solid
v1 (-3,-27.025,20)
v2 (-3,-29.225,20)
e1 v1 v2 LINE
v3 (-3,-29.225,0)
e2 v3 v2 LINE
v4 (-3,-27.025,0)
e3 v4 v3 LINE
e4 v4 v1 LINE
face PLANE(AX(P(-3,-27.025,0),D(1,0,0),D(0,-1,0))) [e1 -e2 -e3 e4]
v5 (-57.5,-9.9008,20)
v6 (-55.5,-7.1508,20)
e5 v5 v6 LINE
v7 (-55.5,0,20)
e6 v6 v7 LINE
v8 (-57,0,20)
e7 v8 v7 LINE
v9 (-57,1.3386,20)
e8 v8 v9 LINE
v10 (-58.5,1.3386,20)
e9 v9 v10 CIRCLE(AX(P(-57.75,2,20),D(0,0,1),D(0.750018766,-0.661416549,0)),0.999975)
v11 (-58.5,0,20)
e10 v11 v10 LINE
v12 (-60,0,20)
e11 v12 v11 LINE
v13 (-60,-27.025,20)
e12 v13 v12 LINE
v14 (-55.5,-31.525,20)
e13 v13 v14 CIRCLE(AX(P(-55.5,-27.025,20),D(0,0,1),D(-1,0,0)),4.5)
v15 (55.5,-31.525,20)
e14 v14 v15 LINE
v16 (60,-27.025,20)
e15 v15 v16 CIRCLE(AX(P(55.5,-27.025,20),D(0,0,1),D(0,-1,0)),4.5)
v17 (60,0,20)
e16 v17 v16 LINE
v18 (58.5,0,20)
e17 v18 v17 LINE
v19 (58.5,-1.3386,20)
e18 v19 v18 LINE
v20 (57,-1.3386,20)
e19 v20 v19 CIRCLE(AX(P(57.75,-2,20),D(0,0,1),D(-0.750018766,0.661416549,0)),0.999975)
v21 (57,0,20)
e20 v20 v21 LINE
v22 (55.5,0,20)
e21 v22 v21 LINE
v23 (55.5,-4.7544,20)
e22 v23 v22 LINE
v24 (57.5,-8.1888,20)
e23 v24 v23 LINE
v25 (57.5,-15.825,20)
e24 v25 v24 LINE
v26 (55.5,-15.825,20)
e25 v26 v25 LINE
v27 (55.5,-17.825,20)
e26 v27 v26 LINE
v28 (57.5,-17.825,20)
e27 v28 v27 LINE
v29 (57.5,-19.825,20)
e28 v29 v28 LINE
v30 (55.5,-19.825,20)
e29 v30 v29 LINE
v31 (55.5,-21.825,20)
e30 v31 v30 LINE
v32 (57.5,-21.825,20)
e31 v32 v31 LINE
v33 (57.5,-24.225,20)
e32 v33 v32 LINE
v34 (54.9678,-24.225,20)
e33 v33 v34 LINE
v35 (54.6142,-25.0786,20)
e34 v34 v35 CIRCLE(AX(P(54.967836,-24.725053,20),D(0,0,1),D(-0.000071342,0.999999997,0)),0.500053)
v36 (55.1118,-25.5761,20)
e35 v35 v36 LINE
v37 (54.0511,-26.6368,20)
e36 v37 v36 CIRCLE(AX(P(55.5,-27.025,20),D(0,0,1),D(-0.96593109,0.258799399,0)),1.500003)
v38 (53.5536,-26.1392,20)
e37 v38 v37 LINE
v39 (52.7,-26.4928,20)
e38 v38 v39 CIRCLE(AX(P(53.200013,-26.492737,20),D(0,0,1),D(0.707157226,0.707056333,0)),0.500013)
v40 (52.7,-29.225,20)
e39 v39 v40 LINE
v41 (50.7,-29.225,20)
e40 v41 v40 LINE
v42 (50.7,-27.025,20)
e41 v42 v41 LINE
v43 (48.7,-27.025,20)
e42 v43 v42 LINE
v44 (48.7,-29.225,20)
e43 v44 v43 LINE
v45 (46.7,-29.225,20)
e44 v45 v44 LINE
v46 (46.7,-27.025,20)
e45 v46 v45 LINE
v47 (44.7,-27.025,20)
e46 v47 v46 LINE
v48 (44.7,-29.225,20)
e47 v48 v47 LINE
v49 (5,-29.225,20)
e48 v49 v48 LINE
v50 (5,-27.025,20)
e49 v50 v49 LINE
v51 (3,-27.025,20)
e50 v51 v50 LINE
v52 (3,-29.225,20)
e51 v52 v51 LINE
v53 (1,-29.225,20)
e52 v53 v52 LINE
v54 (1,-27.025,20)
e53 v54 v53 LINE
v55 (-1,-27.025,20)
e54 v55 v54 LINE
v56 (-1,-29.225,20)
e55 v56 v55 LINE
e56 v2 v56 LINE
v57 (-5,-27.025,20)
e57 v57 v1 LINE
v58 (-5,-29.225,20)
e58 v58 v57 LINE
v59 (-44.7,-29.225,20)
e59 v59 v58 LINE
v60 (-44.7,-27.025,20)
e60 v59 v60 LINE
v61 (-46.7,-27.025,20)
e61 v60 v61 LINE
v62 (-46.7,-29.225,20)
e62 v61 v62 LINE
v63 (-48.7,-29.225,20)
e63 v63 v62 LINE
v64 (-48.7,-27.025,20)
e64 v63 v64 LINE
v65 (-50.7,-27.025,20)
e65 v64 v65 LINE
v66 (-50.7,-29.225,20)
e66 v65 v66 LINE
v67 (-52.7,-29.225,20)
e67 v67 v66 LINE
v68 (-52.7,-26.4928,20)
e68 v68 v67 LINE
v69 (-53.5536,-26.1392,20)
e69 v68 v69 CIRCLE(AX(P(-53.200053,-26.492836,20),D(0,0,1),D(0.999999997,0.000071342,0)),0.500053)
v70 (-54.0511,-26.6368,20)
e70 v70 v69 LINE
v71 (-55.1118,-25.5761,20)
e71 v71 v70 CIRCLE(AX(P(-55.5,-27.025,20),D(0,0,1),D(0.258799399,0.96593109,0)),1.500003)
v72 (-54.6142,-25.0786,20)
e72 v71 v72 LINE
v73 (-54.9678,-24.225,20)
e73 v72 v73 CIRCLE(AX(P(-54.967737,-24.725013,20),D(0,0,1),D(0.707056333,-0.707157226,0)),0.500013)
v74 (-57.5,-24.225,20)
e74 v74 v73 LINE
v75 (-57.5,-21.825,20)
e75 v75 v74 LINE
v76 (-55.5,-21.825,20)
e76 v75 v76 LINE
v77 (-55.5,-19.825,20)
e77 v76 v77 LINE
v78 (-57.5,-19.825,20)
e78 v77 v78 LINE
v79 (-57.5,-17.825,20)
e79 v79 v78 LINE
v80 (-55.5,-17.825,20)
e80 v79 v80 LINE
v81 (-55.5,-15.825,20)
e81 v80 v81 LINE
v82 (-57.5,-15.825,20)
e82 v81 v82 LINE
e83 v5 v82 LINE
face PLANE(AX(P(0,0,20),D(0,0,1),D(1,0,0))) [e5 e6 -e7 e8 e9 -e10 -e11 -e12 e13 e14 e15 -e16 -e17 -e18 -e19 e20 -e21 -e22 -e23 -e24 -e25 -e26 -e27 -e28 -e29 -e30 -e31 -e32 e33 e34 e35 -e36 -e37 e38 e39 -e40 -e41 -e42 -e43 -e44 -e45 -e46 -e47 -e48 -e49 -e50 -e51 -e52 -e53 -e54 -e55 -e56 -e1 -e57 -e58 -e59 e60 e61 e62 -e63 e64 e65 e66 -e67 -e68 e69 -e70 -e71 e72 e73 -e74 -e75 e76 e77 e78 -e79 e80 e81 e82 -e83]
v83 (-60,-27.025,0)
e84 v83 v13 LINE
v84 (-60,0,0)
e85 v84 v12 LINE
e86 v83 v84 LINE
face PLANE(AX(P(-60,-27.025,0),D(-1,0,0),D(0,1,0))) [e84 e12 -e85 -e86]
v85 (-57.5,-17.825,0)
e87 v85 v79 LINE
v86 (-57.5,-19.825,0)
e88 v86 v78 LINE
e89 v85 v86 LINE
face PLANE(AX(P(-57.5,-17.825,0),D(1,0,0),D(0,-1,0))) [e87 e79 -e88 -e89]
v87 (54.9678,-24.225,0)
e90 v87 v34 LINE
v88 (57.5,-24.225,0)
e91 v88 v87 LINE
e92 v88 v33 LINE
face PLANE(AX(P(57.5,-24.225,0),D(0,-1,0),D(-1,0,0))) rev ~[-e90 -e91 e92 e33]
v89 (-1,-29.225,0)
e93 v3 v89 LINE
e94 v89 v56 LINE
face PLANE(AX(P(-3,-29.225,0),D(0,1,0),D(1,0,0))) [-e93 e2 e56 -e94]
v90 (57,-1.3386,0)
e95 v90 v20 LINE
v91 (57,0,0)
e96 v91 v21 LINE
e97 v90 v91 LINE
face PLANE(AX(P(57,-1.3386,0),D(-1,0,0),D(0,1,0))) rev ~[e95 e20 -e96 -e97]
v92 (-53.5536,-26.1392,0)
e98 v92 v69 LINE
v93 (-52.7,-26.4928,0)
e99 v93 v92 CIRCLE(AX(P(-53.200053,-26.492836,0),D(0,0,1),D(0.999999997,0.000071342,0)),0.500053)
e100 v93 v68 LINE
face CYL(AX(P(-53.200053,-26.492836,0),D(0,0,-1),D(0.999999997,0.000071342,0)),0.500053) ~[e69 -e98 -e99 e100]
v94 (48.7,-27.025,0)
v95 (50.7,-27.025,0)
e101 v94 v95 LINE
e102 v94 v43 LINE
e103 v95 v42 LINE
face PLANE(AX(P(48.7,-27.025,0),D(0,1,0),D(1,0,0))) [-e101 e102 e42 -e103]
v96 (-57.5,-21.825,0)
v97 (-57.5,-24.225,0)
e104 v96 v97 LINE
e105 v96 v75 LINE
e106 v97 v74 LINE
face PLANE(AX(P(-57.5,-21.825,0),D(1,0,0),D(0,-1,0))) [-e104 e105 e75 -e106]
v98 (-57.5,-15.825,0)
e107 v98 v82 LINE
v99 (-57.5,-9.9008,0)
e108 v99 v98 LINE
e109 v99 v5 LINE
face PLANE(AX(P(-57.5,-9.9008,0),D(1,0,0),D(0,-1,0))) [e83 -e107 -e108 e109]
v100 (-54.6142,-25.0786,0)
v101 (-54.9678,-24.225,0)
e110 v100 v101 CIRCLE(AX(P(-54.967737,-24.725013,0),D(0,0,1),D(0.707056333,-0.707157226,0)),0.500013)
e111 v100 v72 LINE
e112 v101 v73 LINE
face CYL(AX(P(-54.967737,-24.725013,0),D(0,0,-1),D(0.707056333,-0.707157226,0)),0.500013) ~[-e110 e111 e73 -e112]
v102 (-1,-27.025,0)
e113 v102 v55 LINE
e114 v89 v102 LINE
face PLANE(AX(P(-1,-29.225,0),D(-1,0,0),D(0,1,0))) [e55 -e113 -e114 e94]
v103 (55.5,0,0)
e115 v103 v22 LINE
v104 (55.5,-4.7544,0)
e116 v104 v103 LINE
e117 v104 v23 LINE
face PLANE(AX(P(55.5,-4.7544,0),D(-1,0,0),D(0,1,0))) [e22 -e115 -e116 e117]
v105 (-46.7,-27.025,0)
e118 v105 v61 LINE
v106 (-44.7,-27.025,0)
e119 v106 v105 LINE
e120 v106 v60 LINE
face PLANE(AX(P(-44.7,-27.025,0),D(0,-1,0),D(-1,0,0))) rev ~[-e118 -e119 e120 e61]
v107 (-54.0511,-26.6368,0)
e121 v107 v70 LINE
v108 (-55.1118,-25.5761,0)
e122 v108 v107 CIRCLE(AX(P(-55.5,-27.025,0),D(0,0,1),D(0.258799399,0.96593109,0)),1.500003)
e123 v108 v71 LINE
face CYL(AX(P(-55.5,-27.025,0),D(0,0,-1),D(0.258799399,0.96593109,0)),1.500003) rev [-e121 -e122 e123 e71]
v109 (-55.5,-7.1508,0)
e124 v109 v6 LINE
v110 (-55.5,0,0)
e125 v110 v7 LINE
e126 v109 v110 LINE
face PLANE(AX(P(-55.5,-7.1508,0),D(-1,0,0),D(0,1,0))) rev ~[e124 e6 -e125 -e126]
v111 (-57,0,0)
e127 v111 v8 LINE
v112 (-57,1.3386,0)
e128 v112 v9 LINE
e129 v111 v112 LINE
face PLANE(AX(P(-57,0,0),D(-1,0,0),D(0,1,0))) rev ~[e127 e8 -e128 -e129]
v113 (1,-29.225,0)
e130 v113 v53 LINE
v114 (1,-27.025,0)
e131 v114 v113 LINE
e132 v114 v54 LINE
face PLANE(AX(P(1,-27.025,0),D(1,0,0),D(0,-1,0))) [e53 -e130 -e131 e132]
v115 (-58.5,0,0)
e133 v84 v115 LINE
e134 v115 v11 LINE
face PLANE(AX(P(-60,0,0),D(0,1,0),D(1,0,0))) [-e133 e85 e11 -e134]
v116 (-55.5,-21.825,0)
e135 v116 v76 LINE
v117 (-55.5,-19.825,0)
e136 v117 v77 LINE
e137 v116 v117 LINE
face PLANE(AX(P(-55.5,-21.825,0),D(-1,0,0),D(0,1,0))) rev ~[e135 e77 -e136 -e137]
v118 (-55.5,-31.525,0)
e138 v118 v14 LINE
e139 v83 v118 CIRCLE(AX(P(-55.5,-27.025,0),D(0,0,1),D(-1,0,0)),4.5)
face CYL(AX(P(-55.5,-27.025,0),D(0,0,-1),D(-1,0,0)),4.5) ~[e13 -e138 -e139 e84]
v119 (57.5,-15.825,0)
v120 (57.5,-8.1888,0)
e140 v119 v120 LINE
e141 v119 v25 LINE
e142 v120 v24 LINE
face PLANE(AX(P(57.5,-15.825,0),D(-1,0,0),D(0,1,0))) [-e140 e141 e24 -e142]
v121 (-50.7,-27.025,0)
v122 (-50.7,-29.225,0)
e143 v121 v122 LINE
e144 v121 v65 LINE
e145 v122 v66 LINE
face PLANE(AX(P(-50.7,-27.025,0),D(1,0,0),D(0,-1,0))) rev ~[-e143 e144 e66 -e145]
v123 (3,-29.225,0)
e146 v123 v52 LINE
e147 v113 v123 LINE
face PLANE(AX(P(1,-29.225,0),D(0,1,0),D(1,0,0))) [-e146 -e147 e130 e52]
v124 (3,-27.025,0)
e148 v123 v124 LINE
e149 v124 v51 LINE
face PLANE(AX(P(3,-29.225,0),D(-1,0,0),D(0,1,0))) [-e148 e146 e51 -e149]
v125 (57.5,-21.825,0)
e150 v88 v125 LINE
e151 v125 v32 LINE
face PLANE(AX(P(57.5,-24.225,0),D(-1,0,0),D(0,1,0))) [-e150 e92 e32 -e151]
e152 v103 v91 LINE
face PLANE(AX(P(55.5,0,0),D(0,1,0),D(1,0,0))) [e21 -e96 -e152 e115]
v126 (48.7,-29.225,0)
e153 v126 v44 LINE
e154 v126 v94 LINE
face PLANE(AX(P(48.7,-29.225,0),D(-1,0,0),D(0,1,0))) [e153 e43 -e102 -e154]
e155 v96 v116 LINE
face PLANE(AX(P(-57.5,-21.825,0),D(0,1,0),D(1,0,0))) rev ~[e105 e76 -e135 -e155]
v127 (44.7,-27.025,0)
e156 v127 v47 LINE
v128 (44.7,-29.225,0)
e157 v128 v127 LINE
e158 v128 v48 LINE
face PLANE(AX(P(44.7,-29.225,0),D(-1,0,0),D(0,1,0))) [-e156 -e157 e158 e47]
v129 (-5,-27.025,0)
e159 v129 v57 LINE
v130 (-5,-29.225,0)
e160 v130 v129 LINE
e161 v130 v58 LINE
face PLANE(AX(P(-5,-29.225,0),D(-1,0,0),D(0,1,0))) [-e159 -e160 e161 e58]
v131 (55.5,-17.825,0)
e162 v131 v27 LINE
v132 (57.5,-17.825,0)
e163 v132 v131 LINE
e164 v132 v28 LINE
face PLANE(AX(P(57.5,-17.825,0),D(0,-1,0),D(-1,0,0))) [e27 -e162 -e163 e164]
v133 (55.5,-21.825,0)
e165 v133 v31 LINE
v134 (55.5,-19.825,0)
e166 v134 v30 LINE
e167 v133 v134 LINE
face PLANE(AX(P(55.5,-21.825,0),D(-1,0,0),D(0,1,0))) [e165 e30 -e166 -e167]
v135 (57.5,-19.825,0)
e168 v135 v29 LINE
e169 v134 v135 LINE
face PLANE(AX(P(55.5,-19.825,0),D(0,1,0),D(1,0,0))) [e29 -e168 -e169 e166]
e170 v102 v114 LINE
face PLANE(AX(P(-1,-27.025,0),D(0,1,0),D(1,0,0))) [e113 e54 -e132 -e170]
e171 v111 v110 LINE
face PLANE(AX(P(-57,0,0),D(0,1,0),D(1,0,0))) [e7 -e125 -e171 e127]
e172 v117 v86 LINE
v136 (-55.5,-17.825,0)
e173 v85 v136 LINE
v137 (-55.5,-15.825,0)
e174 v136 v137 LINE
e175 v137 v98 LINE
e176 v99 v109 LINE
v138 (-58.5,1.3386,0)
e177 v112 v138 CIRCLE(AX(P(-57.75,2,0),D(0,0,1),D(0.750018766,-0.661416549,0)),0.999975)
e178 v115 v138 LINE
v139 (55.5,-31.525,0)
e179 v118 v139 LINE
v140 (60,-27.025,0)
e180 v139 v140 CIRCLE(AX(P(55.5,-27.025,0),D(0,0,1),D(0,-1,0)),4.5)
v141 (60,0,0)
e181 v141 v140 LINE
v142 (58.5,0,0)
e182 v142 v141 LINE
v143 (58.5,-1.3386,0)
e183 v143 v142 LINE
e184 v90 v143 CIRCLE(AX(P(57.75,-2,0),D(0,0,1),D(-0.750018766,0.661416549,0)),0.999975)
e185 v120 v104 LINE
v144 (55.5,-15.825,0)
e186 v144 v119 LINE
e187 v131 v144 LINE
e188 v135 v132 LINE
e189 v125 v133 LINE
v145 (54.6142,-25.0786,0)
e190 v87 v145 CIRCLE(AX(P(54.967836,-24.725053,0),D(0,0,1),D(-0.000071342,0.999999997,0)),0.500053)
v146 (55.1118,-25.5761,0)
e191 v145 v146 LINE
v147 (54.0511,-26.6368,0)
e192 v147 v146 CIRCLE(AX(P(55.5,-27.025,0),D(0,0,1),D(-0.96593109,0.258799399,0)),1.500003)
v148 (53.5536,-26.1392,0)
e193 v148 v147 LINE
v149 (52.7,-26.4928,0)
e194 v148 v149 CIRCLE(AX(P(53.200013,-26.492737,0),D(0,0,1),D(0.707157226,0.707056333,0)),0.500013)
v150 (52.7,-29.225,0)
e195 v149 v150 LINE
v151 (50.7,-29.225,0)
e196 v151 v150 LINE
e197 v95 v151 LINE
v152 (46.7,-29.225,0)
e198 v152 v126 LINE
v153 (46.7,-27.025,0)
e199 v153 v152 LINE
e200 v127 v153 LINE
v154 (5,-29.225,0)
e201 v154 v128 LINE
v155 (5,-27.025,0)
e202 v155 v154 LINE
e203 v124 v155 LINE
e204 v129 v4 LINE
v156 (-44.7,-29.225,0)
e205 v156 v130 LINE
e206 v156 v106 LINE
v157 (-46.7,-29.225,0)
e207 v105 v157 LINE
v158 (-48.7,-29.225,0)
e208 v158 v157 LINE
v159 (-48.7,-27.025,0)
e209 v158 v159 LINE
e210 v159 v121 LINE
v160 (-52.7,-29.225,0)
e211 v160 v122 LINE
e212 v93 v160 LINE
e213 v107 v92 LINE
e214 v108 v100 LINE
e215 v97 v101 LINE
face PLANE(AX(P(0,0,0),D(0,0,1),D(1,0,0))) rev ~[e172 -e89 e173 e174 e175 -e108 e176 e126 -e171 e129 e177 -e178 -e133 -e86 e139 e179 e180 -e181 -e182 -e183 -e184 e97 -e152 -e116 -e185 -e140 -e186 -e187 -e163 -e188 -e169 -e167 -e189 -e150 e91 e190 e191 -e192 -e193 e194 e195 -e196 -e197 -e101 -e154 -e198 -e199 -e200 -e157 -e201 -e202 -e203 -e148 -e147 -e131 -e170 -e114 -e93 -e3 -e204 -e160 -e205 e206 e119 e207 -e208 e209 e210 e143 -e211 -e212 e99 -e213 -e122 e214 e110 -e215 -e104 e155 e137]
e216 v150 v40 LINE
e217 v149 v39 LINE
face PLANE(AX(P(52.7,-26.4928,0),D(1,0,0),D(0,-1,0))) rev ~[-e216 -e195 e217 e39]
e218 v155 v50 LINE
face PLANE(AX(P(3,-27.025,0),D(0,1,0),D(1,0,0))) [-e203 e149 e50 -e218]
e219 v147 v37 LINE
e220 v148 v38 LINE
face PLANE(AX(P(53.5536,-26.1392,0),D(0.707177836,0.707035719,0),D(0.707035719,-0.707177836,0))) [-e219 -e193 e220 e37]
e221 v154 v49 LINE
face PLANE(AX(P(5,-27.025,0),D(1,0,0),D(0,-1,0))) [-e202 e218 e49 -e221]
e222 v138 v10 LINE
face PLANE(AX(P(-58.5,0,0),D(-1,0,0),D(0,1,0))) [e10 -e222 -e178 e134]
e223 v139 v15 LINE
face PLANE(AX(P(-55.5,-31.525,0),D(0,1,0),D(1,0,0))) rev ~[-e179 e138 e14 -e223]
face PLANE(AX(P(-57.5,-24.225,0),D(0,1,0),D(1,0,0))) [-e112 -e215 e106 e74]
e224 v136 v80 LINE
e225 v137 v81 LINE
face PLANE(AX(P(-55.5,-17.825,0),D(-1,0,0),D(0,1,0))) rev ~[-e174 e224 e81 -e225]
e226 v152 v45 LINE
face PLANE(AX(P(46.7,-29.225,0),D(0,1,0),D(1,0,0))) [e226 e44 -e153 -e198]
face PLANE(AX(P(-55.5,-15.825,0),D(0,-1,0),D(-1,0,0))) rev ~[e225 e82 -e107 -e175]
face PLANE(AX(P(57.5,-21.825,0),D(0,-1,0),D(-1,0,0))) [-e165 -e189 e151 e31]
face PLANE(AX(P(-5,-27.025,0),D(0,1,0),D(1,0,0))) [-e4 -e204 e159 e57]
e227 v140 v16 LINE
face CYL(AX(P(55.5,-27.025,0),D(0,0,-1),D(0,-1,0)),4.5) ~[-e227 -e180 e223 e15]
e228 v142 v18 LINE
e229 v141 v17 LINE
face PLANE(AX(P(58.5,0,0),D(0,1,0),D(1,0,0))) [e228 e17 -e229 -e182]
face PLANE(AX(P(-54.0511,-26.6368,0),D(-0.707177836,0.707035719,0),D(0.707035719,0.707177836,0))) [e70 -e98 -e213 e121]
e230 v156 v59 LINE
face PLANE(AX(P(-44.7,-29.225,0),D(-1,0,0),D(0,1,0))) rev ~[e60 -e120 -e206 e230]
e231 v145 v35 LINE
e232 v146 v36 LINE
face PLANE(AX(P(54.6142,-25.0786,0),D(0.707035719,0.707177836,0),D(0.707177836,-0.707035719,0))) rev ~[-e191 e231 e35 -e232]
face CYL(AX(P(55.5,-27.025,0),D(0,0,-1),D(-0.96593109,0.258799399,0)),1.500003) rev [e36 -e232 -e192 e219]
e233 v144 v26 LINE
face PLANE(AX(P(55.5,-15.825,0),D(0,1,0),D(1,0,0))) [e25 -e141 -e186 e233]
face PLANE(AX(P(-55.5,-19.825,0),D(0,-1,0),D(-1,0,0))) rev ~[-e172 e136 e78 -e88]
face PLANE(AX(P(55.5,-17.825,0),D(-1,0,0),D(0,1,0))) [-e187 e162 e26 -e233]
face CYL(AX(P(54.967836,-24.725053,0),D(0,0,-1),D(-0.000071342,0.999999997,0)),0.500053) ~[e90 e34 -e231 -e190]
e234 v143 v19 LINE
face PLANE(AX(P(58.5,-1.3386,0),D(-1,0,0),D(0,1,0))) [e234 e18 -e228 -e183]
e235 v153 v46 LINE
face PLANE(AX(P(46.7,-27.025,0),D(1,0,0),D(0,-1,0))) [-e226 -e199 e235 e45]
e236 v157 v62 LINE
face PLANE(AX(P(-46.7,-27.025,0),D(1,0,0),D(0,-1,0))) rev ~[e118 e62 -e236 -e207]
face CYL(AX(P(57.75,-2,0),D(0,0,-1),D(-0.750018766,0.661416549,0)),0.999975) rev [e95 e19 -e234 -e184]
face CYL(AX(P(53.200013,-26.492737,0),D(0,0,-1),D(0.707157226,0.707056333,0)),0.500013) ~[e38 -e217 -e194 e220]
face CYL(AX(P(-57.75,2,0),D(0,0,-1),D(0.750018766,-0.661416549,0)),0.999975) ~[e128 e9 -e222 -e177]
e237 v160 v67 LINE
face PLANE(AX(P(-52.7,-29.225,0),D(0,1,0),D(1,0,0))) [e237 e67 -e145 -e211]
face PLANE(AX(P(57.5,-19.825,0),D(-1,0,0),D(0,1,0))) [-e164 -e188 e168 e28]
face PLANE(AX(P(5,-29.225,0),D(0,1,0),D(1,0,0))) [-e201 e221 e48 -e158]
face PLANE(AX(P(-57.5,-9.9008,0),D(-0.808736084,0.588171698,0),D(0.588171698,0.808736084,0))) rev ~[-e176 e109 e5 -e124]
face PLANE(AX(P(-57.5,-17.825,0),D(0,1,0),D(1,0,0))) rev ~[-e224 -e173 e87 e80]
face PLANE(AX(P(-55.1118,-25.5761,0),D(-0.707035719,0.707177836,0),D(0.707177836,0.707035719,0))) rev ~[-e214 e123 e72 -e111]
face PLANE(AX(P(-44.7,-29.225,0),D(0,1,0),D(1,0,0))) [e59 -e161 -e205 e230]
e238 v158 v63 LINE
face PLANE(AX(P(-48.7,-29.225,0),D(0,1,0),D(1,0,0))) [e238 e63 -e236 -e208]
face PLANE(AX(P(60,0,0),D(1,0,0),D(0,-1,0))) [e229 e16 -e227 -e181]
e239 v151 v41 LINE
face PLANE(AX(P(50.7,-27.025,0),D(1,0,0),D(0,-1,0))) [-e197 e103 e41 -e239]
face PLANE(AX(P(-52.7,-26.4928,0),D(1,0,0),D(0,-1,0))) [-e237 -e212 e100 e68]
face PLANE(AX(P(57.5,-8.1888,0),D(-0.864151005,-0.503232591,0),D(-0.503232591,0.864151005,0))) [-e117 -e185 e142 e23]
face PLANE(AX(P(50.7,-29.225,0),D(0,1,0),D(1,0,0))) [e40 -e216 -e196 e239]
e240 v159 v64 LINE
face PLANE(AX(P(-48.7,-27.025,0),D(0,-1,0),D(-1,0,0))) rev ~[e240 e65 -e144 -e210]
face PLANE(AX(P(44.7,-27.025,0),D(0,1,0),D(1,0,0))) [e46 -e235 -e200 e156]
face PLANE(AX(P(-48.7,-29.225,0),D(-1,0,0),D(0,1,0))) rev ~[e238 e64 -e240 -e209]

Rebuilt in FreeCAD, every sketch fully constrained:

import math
import FreeCAD as App
import Part
import Sketcher

doc = App.newDocument("Part")
body = doc.addObject("PartDesign::Body", "Body")

# Sketch on XY plane
sketch1 = body.newObject("Sketcher::SketchObject", "Sketch")
sketch1.AttachmentSupport = (doc.getObject("XY_Plane"), [""])
sketch1.MapMode = "FlatFace"
sketch1.addGeometry(Part.LineSegment(App.Vector(60, -27.025, 0), App.Vector(60, 0, 0)), False)
sketch1.addGeometry(Part.LineSegment(App.Vector(60, 0, 0), App.Vector(58.5, 0, 0)), False)
sketch1.addGeometry(Part.LineSegment(App.Vector(58.5, 0, 0), App.Vector(58.5, -1.3386, 0)), False)
sketch1.addGeometry(Part.ArcOfCircle(Part.Circle(App.Vector(57.75, -2, 0), App.Vector(0, 0, 1), 0.999975), math.radians(138.592003), math.radians(401.407997)), False)
sketch1.addGeometry(Part.LineSegment(App.Vector(57, -1.3386, 0), App.Vector(57, 0, 0)), False)
sketch1.addGeometry(Part.LineSegment(App.Vector(57, 0, 0), App.Vector(55.5, 0, 0)), False)
sketch1.addGeometry(Part.LineSegment(App.Vector(55.5, 0, 0), App.Vector(55.5, -4.7544, 0)), False)
sketch1.addGeometry(Part.LineSegment(App.Vector(55.5, -4.7544, 0), App.Vector(57.5, -8.1888, 0)), False)
sketch1.addGeometry(Part.LineSegment(App.Vector(57.5, -8.1888, 0), App.Vector(57.5, -15.825, 0)), False)
sketch1.addGeometry(Part.LineSegment(App.Vector(57.5, -15.825, 0), App.Vector(55.5, -15.825, 0)), False)
sketch1.addGeometry(Part.LineSegment(App.Vector(55.5, -15.825, 0), App.Vector(55.5, -17.825, 0)), False)
sketch1.addGeometry(Part.LineSegment(App.Vector(55.5, -17.825, 0), App.Vector(57.5, -17.825, 0)), False)
sketch1.addGeometry(Part.LineSegment(App.Vector(57.5, -17.825, 0), App.Vector(57.5, -19.825, 0)), False)
sketch1.addGeometry(Part.LineSegment(App.Vector(57.5, -19.825, 0), App.Vector(55.5, -19.825, 0)), False)
sketch1.addGeometry(Part.LineSegment(App.Vector(55.5, -19.825, 0), App.Vector(55.5, -21.825, 0)), False)
sketch1.addGeometry(Part.LineSegment(App.Vector(55.5, -21.825, 0), App.Vector(57.5, -21.825, 0)), False)
sketch1.addGeometry(Part.LineSegment(App.Vector(57.5, -21.825, 0), App.Vector(57.5, -24.225, 0)), False)
sketch1.addGeometry(Part.LineSegment(App.Vector(57.5, -24.225, 0), App.Vector(54.9678, -24.225, 0)), False)
sketch1.addGeometry(Part.ArcOfCircle(Part.Circle(App.Vector(54.9678, -24.725, 0), App.Vector(0, 0, 1), 0.5), math.radians(90), math.radians(225)), False)
sketch1.addGeometry(Part.LineSegment(App.Vector(54.6142, -25.0786, 0), App.Vector(55.1118, -25.5761, 0)), False)
sketch1.addGeometry(Part.ArcOfCircle(Part.Circle(App.Vector(55.5, -27.025, 0), App.Vector(0, 0, 1), 1.500003), math.radians(165.001165), math.radians(464.998835)), False)
sketch1.addGeometry(Part.LineSegment(App.Vector(54.0511, -26.6368, 0), App.Vector(53.5536, -26.1392, 0)), False)
sketch1.addGeometry(Part.ArcOfCircle(Part.Circle(App.Vector(53.2, -26.4928, 0), App.Vector(0, 0, 1), 0.500066), math.radians(45), math.radians(180)), False)
sketch1.addGeometry(Part.LineSegment(App.Vector(52.7, -26.4928, 0), App.Vector(52.7, -29.225, 0)), False)
sketch1.addGeometry(Part.LineSegment(App.Vector(52.7, -29.225, 0), App.Vector(50.7, -29.225, 0)), False)
sketch1.addGeometry(Part.LineSegment(App.Vector(50.7, -29.225, 0), App.Vector(50.7, -27.025, 0)), False)
sketch1.addGeometry(Part.LineSegment(App.Vector(50.7, -27.025, 0), App.Vector(48.7, -27.025, 0)), False)
sketch1.addGeometry(Part.LineSegment(App.Vector(48.7, -27.025, 0), App.Vector(48.7, -29.225, 0)), False)
sketch1.addGeometry(Part.LineSegment(App.Vector(48.7, -29.225, 0), App.Vector(46.7, -29.225, 0)), False)
sketch1.addGeometry(Part.LineSegment(App.Vector(46.7, -29.225, 0), App.Vector(46.7, -27.025, 0)), False)
sketch1.addGeometry(Part.LineSegment(App.Vector(46.7, -27.025, 0), App.Vector(44.7, -27.025, 0)), False)
sketch1.addGeometry(Part.LineSegment(App.Vector(44.7, -27.025, 0), App.Vector(44.7, -29.225, 0)), False)
sketch1.addGeometry(Part.LineSegment(App.Vector(44.7, -29.225, 0), App.Vector(5, -29.225, 0)), False)
sketch1.addGeometry(Part.LineSegment(App.Vector(5, -29.225, 0), App.Vector(5, -27.025, 0)), False)
sketch1.addGeometry(Part.LineSegment(App.Vector(5, -27.025, 0), App.Vector(3, -27.025, 0)), False)
sketch1.addGeometry(Part.LineSegment(App.Vector(3, -27.025, 0), App.Vector(3, -29.225, 0)), False)
sketch1.addGeometry(Part.LineSegment(App.Vector(3, -29.225, 0), App.Vector(1, -29.225, 0)), False)
sketch1.addGeometry(Part.LineSegment(App.Vector(1, -29.225, 0), App.Vector(1, -27.025, 0)), False)
sketch1.addGeometry(Part.LineSegment(App.Vector(1, -27.025, 0), App.Vector(-1, -27.025, 0)), False)
sketch1.addGeometry(Part.LineSegment(App.Vector(-1, -27.025, 0), App.Vector(-1, -29.225, 0)), False)
sketch1.addGeometry(Part.LineSegment(App.Vector(-1, -29.225, 0), App.Vector(-3, -29.225, 0)), False)
sketch1.addGeometry(Part.LineSegment(App.Vector(-3, -29.225, 0), App.Vector(-3, -27.025, 0)), False)
sketch1.addGeometry(Part.LineSegment(App.Vector(-3, -27.025, 0), App.Vector(-5, -27.025, 0)), False)
sketch1.addGeometry(Part.LineSegment(App.Vector(-5, -27.025, 0), App.Vector(-5, -29.225, 0)), False)
sketch1.addGeometry(Part.LineSegment(App.Vector(-5, -29.225, 0), App.Vector(-44.7, -29.225, 0)), False)
sketch1.addGeometry(Part.LineSegment(App.Vector(-44.7, -29.225, 0), App.Vector(-44.7, -27.025, 0)), False)
sketch1.addGeometry(Part.LineSegment(App.Vector(-44.7, -27.025, 0), App.Vector(-46.7, -27.025, 0)), False)
sketch1.addGeometry(Part.LineSegment(App.Vector(-46.7, -27.025, 0), App.Vector(-46.7, -29.225, 0)), False)
sketch1.addGeometry(Part.LineSegment(App.Vector(-46.7, -29.225, 0), App.Vector(-48.7, -29.225, 0)), False)
sketch1.addGeometry(Part.LineSegment(App.Vector(-48.7, -29.225, 0), App.Vector(-48.7, -27.025, 0)), False)
sketch1.addGeometry(Part.LineSegment(App.Vector(-48.7, -27.025, 0), App.Vector(-50.7, -27.025, 0)), False)
sketch1.addGeometry(Part.LineSegment(App.Vector(-50.7, -27.025, 0), App.Vector(-50.7, -29.225, 0)), False)
sketch1.addGeometry(Part.LineSegment(App.Vector(-50.7, -29.225, 0), App.Vector(-52.7, -29.225, 0)), False)
sketch1.addGeometry(Part.LineSegment(App.Vector(-52.7, -29.225, 0), App.Vector(-52.7, -26.4928, 0)), False)
sketch1.addGeometry(Part.ArcOfCircle(Part.Circle(App.Vector(-53.2, -26.4928, 0), App.Vector(0, 0, 1), 0.5), math.radians(0), math.radians(135)), False)
sketch1.addGeometry(Part.LineSegment(App.Vector(-53.5536, -26.1392, 0), App.Vector(-54.0511, -26.6368, 0)), False)
sketch1.addGeometry(Part.ArcOfCircle(Part.Circle(App.Vector(-55.5, -27.025, 0), App.Vector(0, 0, 1), 1.500003), math.radians(75.001165), math.radians(374.998835)), False)
sketch1.addGeometry(Part.LineSegment(App.Vector(-55.1118, -25.5761, 0), App.Vector(-54.6142, -25.0786, 0)), False)
sketch1.addGeometry(Part.ArcOfCircle(Part.Circle(App.Vector(-54.9678, -24.725, 0), App.Vector(0, 0, 1), 0.500066), math.radians(-45), math.radians(90)), False)
sketch1.addGeometry(Part.LineSegment(App.Vector(-54.9678, -24.225, 0), App.Vector(-57.5, -24.225, 0)), False)
sketch1.addGeometry(Part.LineSegment(App.Vector(-57.5, -24.225, 0), App.Vector(-57.5, -21.825, 0)), False)
sketch1.addGeometry(Part.LineSegment(App.Vector(-57.5, -21.825, 0), App.Vector(-55.5, -21.825, 0)), False)
sketch1.addGeometry(Part.LineSegment(App.Vector(-55.5, -21.825, 0), App.Vector(-55.5, -19.825, 0)), False)
sketch1.addGeometry(Part.LineSegment(App.Vector(-55.5, -19.825, 0), App.Vector(-57.5, -19.825, 0)), False)
sketch1.addGeometry(Part.LineSegment(App.Vector(-57.5, -19.825, 0), App.Vector(-57.5, -17.825, 0)), False)
sketch1.addGeometry(Part.LineSegment(App.Vector(-57.5, -17.825, 0), App.Vector(-55.5, -17.825, 0)), False)
sketch1.addGeometry(Part.LineSegment(App.Vector(-55.5, -17.825, 0), App.Vector(-55.5, -15.825, 0)), False)
sketch1.addGeometry(Part.LineSegment(App.Vector(-55.5, -15.825, 0), App.Vector(-57.5, -15.825, 0)), False)
sketch1.addGeometry(Part.LineSegment(App.Vector(-57.5, -15.825, 0), App.Vector(-57.5, -9.9008, 0)), False)
sketch1.addGeometry(Part.LineSegment(App.Vector(-57.5, -9.9008, 0), App.Vector(-55.5, -7.1508, 0)), False)
sketch1.addGeometry(Part.LineSegment(App.Vector(-55.5, -7.1508, 0), App.Vector(-55.5, 0, 0)), False)
sketch1.addGeometry(Part.LineSegment(App.Vector(-55.5, 0, 0), App.Vector(-57, 0, 0)), False)
sketch1.addGeometry(Part.LineSegment(App.Vector(-57, 0, 0), App.Vector(-57, 1.3386, 0)), False)
sketch1.addGeometry(Part.ArcOfCircle(Part.Circle(App.Vector(-57.75, 2, 0), App.Vector(0, 0, 1), 0.999975), math.radians(-41.407997), math.radians(221.407997)), False)
sketch1.addGeometry(Part.LineSegment(App.Vector(-58.5, 1.3386, 0), App.Vector(-58.5, 0, 0)), False)
sketch1.addGeometry(Part.LineSegment(App.Vector(-58.5, 0, 0), App.Vector(-60, 0, 0)), False)
sketch1.addGeometry(Part.LineSegment(App.Vector(-60, 0, 0), App.Vector(-60, -27.025, 0)), False)
sketch1.addGeometry(Part.ArcOfCircle(Part.Circle(App.Vector(-55.5, -27.025, 0), App.Vector(0, 0, 1), 4.5), math.radians(180), math.radians(270)), False)
sketch1.addGeometry(Part.LineSegment(App.Vector(-55.5, -31.525, 0), App.Vector(55.5, -31.525, 0)), False)
sketch1.addGeometry(Part.ArcOfCircle(Part.Circle(App.Vector(55.5, -27.025, 0), App.Vector(0, 0, 1), 4.5), math.radians(-90), math.radians(0)), False)
sketch1.addConstraint(Sketcher.Constraint("Coincident", 0, 2, 1, 1))
sketch1.addConstraint(Sketcher.Constraint("Coincident", 1, 2, 2, 1))
sketch1.addConstraint(Sketcher.Constraint("Coincident", 2, 2, 3, 2))
sketch1.addConstraint(Sketcher.Constraint("Coincident", 3, 1, 4, 1))
sketch1.addConstraint(Sketcher.Constraint("Coincident", 4, 2, 5, 1))
sketch1.addConstraint(Sketcher.Constraint("Coincident", 5, 2, 6, 1))
sketch1.addConstraint(Sketcher.Constraint("Coincident", 6, 2, 7, 1))
sketch1.addConstraint(Sketcher.Constraint("Coincident", 7, 2, 8, 1))
sketch1.addConstraint(Sketcher.Constraint("Coincident", 8, 2, 9, 1))
sketch1.addConstraint(Sketcher.Constraint("Coincident", 9, 2, 10, 1))
sketch1.addConstraint(Sketcher.Constraint("Coincident", 10, 2, 11, 1))
sketch1.addConstraint(Sketcher.Constraint("Coincident", 11, 2, 12, 1))
sketch1.addConstraint(Sketcher.Constraint("Coincident", 12, 2, 13, 1))
sketch1.addConstraint(Sketcher.Constraint("Coincident", 13, 2, 14, 1))
sketch1.addConstraint(Sketcher.Constraint("Coincident", 14, 2, 15, 1))
sketch1.addConstraint(Sketcher.Constraint("Coincident", 15, 2, 16, 1))
sketch1.addConstraint(Sketcher.Constraint("Coincident", 16, 2, 17, 1))
sketch1.addConstraint(Sketcher.Constraint("Tangent", 17, 2, 18, 1))
sketch1.addConstraint(Sketcher.Constraint("Tangent", 18, 2, 19, 1))
sketch1.addConstraint(Sketcher.Constraint("Coincident", 19, 2, 20, 2))
sketch1.addConstraint(Sketcher.Constraint("Coincident", 20, 1, 21, 1))
sketch1.addConstraint(Sketcher.Constraint("Tangent", 21, 2, 22, 1))
sketch1.addConstraint(Sketcher.Constraint("Tangent", 22, 2, 23, 1))
sketch1.addConstraint(Sketcher.Constraint("Coincident", 23, 2, 24, 1))
sketch1.addConstraint(Sketcher.Constraint("Coincident", 24, 2, 25, 1))
sketch1.addConstraint(Sketcher.Constraint("Coincident", 25, 2, 26, 1))
sketch1.addConstraint(Sketcher.Constraint("Coincident", 26, 2, 27, 1))
sketch1.addConstraint(Sketcher.Constraint("Coincident", 27, 2, 28, 1))
sketch1.addConstraint(Sketcher.Constraint("Coincident", 28, 2, 29, 1))
sketch1.addConstraint(Sketcher.Constraint("Coincident", 29, 2, 30, 1))
sketch1.addConstraint(Sketcher.Constraint("Coincident", 30, 2, 31, 1))
sketch1.addConstraint(Sketcher.Constraint("Coincident", 31, 2, 32, 1))
sketch1.addConstraint(Sketcher.Constraint("Coincident", 32, 2, 33, 1))
sketch1.addConstraint(Sketcher.Constraint("Coincident", 33, 2, 34, 1))
sketch1.addConstraint(Sketcher.Constraint("Coincident", 34, 2, 35, 1))
sketch1.addConstraint(Sketcher.Constraint("Coincident", 35, 2, 36, 1))
sketch1.addConstraint(Sketcher.Constraint("Coincident", 36, 2, 37, 1))
sketch1.addConstraint(Sketcher.Constraint("Coincident", 37, 2, 38, 1))
sketch1.addConstraint(Sketcher.Constraint("Coincident", 38, 2, 39, 1))
sketch1.addConstraint(Sketcher.Constraint("Coincident", 39, 2, 40, 1))
sketch1.addConstraint(Sketcher.Constraint("Coincident", 40, 2, 41, 1))
sketch1.addConstraint(Sketcher.Constraint("Coincident", 41, 2, 42, 1))
sketch1.addConstraint(Sketcher.Constraint("Coincident", 42, 2, 43, 1))
sketch1.addConstraint(Sketcher.Constraint("Coincident", 43, 2, 44, 1))
sketch1.addConstraint(Sketcher.Constraint("Coincident", 44, 2, 45, 1))
sketch1.addConstraint(Sketcher.Constraint("Coincident", 45, 2, 46, 1))
sketch1.addConstraint(Sketcher.Constraint("Coincident", 46, 2, 47, 1))
sketch1.addConstraint(Sketcher.Constraint("Coincident", 47, 2, 48, 1))
sketch1.addConstraint(Sketcher.Constraint("Coincident", 48, 2, 49, 1))
sketch1.addConstraint(Sketcher.Constraint("Coincident", 49, 2, 50, 1))
sketch1.addConstraint(Sketcher.Constraint("Coincident", 50, 2, 51, 1))
sketch1.addConstraint(Sketcher.Constraint("Coincident", 51, 2, 52, 1))
sketch1.addConstraint(Sketcher.Constraint("Coincident", 52, 2, 53, 1))
sketch1.addConstraint(Sketcher.Constraint("Tangent", 53, 2, 54, 1))
sketch1.addConstraint(Sketcher.Constraint("Tangent", 54, 2, 55, 1))
sketch1.addConstraint(Sketcher.Constraint("Coincident", 55, 2, 56, 2))
sketch1.addConstraint(Sketcher.Constraint("Coincident", 56, 1, 57, 1))
sketch1.addConstraint(Sketcher.Constraint("Tangent", 57, 2, 58, 1))
sketch1.addConstraint(Sketcher.Constraint("Tangent", 58, 2, 59, 1))
sketch1.addConstraint(Sketcher.Constraint("Coincident", 59, 2, 60, 1))
sketch1.addConstraint(Sketcher.Constraint("Coincident", 60, 2, 61, 1))
sketch1.addConstraint(Sketcher.Constraint("Coincident", 61, 2, 62, 1))
sketch1.addConstraint(Sketcher.Constraint("Coincident", 62, 2, 63, 1))
sketch1.addConstraint(Sketcher.Constraint("Coincident", 63, 2, 64, 1))
sketch1.addConstraint(Sketcher.Constraint("Coincident", 64, 2, 65, 1))
sketch1.addConstraint(Sketcher.Constraint("Coincident", 65, 2, 66, 1))
sketch1.addConstraint(Sketcher.Constraint("Coincident", 66, 2, 67, 1))
sketch1.addConstraint(Sketcher.Constraint("Coincident", 67, 2, 68, 1))
sketch1.addConstraint(Sketcher.Constraint("Coincident", 68, 2, 69, 1))
sketch1.addConstraint(Sketcher.Constraint("Coincident", 69, 2, 70, 1))
sketch1.addConstraint(Sketcher.Constraint("Coincident", 70, 2, 71, 1))
sketch1.addConstraint(Sketcher.Constraint("Coincident", 71, 2, 72, 1))
sketch1.addConstraint(Sketcher.Constraint("Coincident", 72, 2, 73, 1))
sketch1.addConstraint(Sketcher.Constraint("Coincident", 73, 2, 74, 1))
sketch1.addConstraint(Sketcher.Constraint("Coincident", 74, 2, 75, 1))
sketch1.addConstraint(Sketcher.Constraint("Coincident", 75, 2, 76, 1))
sketch1.addConstraint(Sketcher.Constraint("Tangent", 76, 2, 77, 1))
sketch1.addConstraint(Sketcher.Constraint("Tangent", 77, 2, 78, 1))
sketch1.addConstraint(Sketcher.Constraint("Tangent", 78, 2, 79, 1))
sketch1.addConstraint(Sketcher.Constraint("Tangent", 79, 2, 0, 1))
sketch1.addConstraint(Sketcher.Constraint("Vertical", 0))
sketch1.addConstraint(Sketcher.Constraint("Horizontal", 1))
sketch1.addConstraint(Sketcher.Constraint("Vertical", 2))
sketch1.addConstraint(Sketcher.Constraint("Vertical", 4))
sketch1.addConstraint(Sketcher.Constraint("Horizontal", 5))
sketch1.addConstraint(Sketcher.Constraint("Vertical", 6))
sketch1.addConstraint(Sketcher.Constraint("Vertical", 8))
sketch1.addConstraint(Sketcher.Constraint("Horizontal", 9))
sketch1.addConstraint(Sketcher.Constraint("Vertical", 10))
sketch1.addConstraint(Sketcher.Constraint("Horizontal", 11))
sketch1.addConstraint(Sketcher.Constraint("Vertical", 12))
sketch1.addConstraint(Sketcher.Constraint("Horizontal", 13))
sketch1.addConstraint(Sketcher.Constraint("Vertical", 14))
sketch1.addConstraint(Sketcher.Constraint("Horizontal", 15))
sketch1.addConstraint(Sketcher.Constraint("Vertical", 16))
sketch1.addConstraint(Sketcher.Constraint("Horizontal", 17))
sketch1.addConstraint(Sketcher.Constraint("Vertical", 23))
sketch1.addConstraint(Sketcher.Constraint("Horizontal", 24))
sketch1.addConstraint(Sketcher.Constraint("Vertical", 25))
sketch1.addConstraint(Sketcher.Constraint("Horizontal", 26))
sketch1.addConstraint(Sketcher.Constraint("Vertical", 27))
sketch1.addConstraint(Sketcher.Constraint("Horizontal", 28))
sketch1.addConstraint(Sketcher.Constraint("Vertical", 29))
sketch1.addConstraint(Sketcher.Constraint("Horizontal", 30))
sketch1.addConstraint(Sketcher.Constraint("Vertical", 31))
sketch1.addConstraint(Sketcher.Constraint("Horizontal", 32))
sketch1.addConstraint(Sketcher.Constraint("Vertical", 33))
sketch1.addConstraint(Sketcher.Constraint("Horizontal", 34))
sketch1.addConstraint(Sketcher.Constraint("Vertical", 35))
sketch1.addConstraint(Sketcher.Constraint("Horizontal", 36))
sketch1.addConstraint(Sketcher.Constraint("Vertical", 37))
sketch1.addConstraint(Sketcher.Constraint("Horizontal", 38))
sketch1.addConstraint(Sketcher.Constraint("Vertical", 39))
sketch1.addConstraint(Sketcher.Constraint("Horizontal", 40))
sketch1.addConstraint(Sketcher.Constraint("Vertical", 41))
sketch1.addConstraint(Sketcher.Constraint("Horizontal", 42))
sketch1.addConstraint(Sketcher.Constraint("Vertical", 43))
sketch1.addConstraint(Sketcher.Constraint("Horizontal", 44))
sketch1.addConstraint(Sketcher.Constraint("Vertical", 45))
sketch1.addConstraint(Sketcher.Constraint("Horizontal", 46))
sketch1.addConstraint(Sketcher.Constraint("Vertical", 47))
sketch1.addConstraint(Sketcher.Constraint("Horizontal", 48))
sketch1.addConstraint(Sketcher.Constraint("Vertical", 49))
sketch1.addConstraint(Sketcher.Constraint("Horizontal", 50))
sketch1.addConstraint(Sketcher.Constraint("Vertical", 51))
sketch1.addConstraint(Sketcher.Constraint("Horizontal", 52))
sketch1.addConstraint(Sketcher.Constraint("Vertical", 53))
sketch1.addConstraint(Sketcher.Constraint("Horizontal", 59))
sketch1.addConstraint(Sketcher.Constraint("Vertical", 60))
sketch1.addConstraint(Sketcher.Constraint("Horizontal", 61))
sketch1.addConstraint(Sketcher.Constraint("Vertical", 62))
sketch1.addConstraint(Sketcher.Constraint("Horizontal", 63))
sketch1.addConstraint(Sketcher.Constraint("Vertical", 64))
sketch1.addConstraint(Sketcher.Constraint("Horizontal", 65))
sketch1.addConstraint(Sketcher.Constraint("Vertical", 66))
sketch1.addConstraint(Sketcher.Constraint("Horizontal", 67))
sketch1.addConstraint(Sketcher.Constraint("Vertical", 68))
sketch1.addConstraint(Sketcher.Constraint("Vertical", 70))
sketch1.addConstraint(Sketcher.Constraint("Horizontal", 71))
sketch1.addConstraint(Sketcher.Constraint("Vertical", 72))
sketch1.addConstraint(Sketcher.Constraint("Vertical", 74))
sketch1.addConstraint(Sketcher.Constraint("Horizontal", 75))
sketch1.addConstraint(Sketcher.Constraint("Vertical", 76))
sketch1.addConstraint(Sketcher.Constraint("Horizontal", 78))
sketch1.addConstraint(Sketcher.Constraint("Coincident", 77, 3, 56, 3))
sketch1.addConstraint(Sketcher.Constraint("Coincident", 79, 3, 20, 3))
sketch1.addConstraint(Sketcher.Constraint("Equal", 18, 22))
sketch1.addConstraint(Sketcher.Constraint("Equal", 22, 54))
sketch1.addConstraint(Sketcher.Constraint("Equal", 20, 56))
sketch1.addConstraint(Sketcher.Constraint("Equal", 54, 58))
sketch1.addConstraint(Sketcher.Constraint("Equal", 3, 73))
sketch1.addConstraint(Sketcher.Constraint("Equal", 77, 79))
sketch1.addConstraint(Sketcher.Constraint("Symmetric", 3, 3, 73, 3, -1, 1))
sketch1.addConstraint(Sketcher.Constraint("Symmetric", 5, 2, 70, 2, -1, 1))
sketch1.addConstraint(Sketcher.Constraint("Symmetric", 1, 2, 74, 2, -1, 1))
sketch1.addConstraint(Sketcher.Constraint("Symmetric", 22, 3, 54, 3, -2))
sketch1.addConstraint(Sketcher.Constraint("Symmetric", 18, 3, 58, 3, -2))
sketch1.addConstraint(Sketcher.Constraint("Symmetric", 36, 2, 39, 2, -2))
sketch1.addConstraint(Sketcher.Constraint("Symmetric", 34, 2, 41, 2, -2))
sketch1.addConstraint(Sketcher.Constraint("Symmetric", 32, 2, 43, 2, -2))
sketch1.addConstraint(Sketcher.Constraint("Symmetric", 30, 2, 45, 2, -2))
sketch1.addConstraint(Sketcher.Constraint("Symmetric", 28, 2, 47, 2, -2))
sketch1.addConstraint(Sketcher.Constraint("Symmetric", 26, 2, 49, 2, -2))
sketch1.addConstraint(Sketcher.Constraint("Symmetric", 24, 2, 51, 2, -2))
sketch1.addConstraint(Sketcher.Constraint("Symmetric", 20, 1, 55, 2, -2))
sketch1.addConstraint(Sketcher.Constraint("Symmetric", 15, 2, 60, 2, -2))
sketch1.addConstraint(Sketcher.Constraint("Symmetric", 13, 2, 62, 2, -2))
sketch1.addConstraint(Sketcher.Constraint("Symmetric", 11, 2, 64, 2, -2))
sketch1.addConstraint(Sketcher.Constraint("Symmetric", 9, 2, 66, 2, -2))
sketch1.addConstraint(Sketcher.Constraint("Symmetric", 4, 2, 71, 2, -2))
sketch1.addConstraint(Sketcher.Constraint("PointOnObject", 0, 2, -1))
sketch1.addConstraint(Sketcher.Constraint("Parallel", 19, 21))
sketch1.addConstraint(Sketcher.Constraint("Perpendicular", 21, 55))
sketch1.addConstraint(Sketcher.Constraint("Parallel", 55, 57))
sketch1.addConstraint(Sketcher.Constraint("Horizontal", 2, 2, 3, 1))
sketch1.addConstraint(Sketcher.Constraint("Horizontal", 79, 3, 25, 2))
sketch1.addConstraint(Sketcher.Constraint("Horizontal", 24, 2, 27, 2))
sketch1.addConstraint(Sketcher.Constraint("Horizontal", 26, 2, 29, 2))
sketch1.addConstraint(Sketcher.Constraint("Horizontal", 28, 2, 31, 2))
sketch1.addConstraint(Sketcher.Constraint("Horizontal", 30, 2, 33, 2))
sketch1.addConstraint(Sketcher.Constraint("Horizontal", 32, 2, 35, 2))
sketch1.addConstraint(Sketcher.Constraint("Horizontal", 34, 2, 37, 2))
sketch1.addConstraint(Sketcher.Constraint("Vertical", 79, 3, 5, 2))
sketch1.addConstraint(Sketcher.Constraint("Vertical", 6, 2, 9, 2))
sketch1.addConstraint(Sketcher.Constraint("Vertical", 8, 2, 11, 2))
sketch1.addConstraint(Sketcher.Constraint("Vertical", 10, 2, 13, 2))
sketch1.addConstraint(Sketcher.Constraint("Vertical", 12, 2, 15, 2))
sketch1.addConstraint(Sketcher.Constraint("Vertical", 64, 2, 67, 2))
sketch1.addConstraint(Sketcher.Constraint("Equal", 1, 5))
sketch1.addConstraint(Sketcher.Constraint("Equal", 15, 24))
sketch1.addConstraint(Sketcher.Constraint("Equal", 24, 26))
sketch1.addConstraint(Sketcher.Constraint("Equal", 26, 28))
sketch1.addConstraint(Sketcher.Constraint("Equal", 28, 30))
sketch1.addConstraint(Sketcher.Constraint("Equal", 30, 34))
sketch1.addConstraint(Sketcher.Constraint("Equal", 34, 36))
sketch1.addConstraint(Sketcher.Constraint("Equal", 36, 38))
sketch1.addConstraint(Sketcher.Constraint("Equal", 67, 10))
sketch1.addConstraint(Sketcher.Constraint("Equal", 10, 12))
sketch1.addConstraint(Sketcher.Constraint("Equal", 12, 14))
sketch1.addConstraint(Sketcher.Constraint("Equal", 19, 21))
sketch1.addConstraint(Sketcher.Constraint("Radius", 3, 1.0))
sketch1.addConstraint(Sketcher.Constraint("Radius", 18, 0.5))
sketch1.addConstraint(Sketcher.Constraint("Radius", 20, 1.5))
sketch1.addConstraint(Sketcher.Constraint("Radius", 77, 4.5))
sketch1.addConstraint(Sketcher.Constraint("DistanceX", 9, 2, 9, 1, 2.0))
sketch1.addConstraint(Sketcher.Constraint("DistanceX", 78, 1, 78, 2, 111.0))
sketch1.addConstraint(Sketcher.Constraint("DistanceX", 1, 2, 1, 1, 1.5))
sketch1.addConstraint(Sketcher.Constraint("DistanceX", 32, 2, 32, 1, 39.7))
sketch1.addConstraint(Sketcher.Constraint("DistanceY", 3, 3, -1, 1, 2.0))
sketch1.addConstraint(Sketcher.Constraint("DistanceY", 16, 2, 16, 1, 2.4))
sketch1.addConstraint(Sketcher.Constraint("DistanceY", 25, 1, 25, 2, 2.2))
sketch1.addConstraint(Sketcher.Constraint("DistanceY", 77, 2, -1, 1, 31.525))
sketch1.addConstraint(Sketcher.Constraint("DistanceX", 17, 2, 17, 1, 2.5322))
sketch1.addConstraint(Sketcher.Constraint("DistanceY", 6, 2, 6, 1, 4.7544))
sketch1.addConstraint(Sketcher.Constraint("DistanceY", 8, 2, 8, 1, 7.6362))
sketch1.addConstraint(Sketcher.Constraint("DistanceY", 23, 2, 23, 1, 2.7322))
sketch1.addConstraint(Sketcher.Constraint("DistanceY", 68, 1, 68, 2, 5.9242))
sketch1.addConstraint(Sketcher.Constraint("DistanceY", 70, 1, 70, 2, 7.1508))
pad1 = body.newObject("PartDesign::Pad", "Pad")
pad1.Profile = sketch1
pad1.Length = 20

doc.recompute()
